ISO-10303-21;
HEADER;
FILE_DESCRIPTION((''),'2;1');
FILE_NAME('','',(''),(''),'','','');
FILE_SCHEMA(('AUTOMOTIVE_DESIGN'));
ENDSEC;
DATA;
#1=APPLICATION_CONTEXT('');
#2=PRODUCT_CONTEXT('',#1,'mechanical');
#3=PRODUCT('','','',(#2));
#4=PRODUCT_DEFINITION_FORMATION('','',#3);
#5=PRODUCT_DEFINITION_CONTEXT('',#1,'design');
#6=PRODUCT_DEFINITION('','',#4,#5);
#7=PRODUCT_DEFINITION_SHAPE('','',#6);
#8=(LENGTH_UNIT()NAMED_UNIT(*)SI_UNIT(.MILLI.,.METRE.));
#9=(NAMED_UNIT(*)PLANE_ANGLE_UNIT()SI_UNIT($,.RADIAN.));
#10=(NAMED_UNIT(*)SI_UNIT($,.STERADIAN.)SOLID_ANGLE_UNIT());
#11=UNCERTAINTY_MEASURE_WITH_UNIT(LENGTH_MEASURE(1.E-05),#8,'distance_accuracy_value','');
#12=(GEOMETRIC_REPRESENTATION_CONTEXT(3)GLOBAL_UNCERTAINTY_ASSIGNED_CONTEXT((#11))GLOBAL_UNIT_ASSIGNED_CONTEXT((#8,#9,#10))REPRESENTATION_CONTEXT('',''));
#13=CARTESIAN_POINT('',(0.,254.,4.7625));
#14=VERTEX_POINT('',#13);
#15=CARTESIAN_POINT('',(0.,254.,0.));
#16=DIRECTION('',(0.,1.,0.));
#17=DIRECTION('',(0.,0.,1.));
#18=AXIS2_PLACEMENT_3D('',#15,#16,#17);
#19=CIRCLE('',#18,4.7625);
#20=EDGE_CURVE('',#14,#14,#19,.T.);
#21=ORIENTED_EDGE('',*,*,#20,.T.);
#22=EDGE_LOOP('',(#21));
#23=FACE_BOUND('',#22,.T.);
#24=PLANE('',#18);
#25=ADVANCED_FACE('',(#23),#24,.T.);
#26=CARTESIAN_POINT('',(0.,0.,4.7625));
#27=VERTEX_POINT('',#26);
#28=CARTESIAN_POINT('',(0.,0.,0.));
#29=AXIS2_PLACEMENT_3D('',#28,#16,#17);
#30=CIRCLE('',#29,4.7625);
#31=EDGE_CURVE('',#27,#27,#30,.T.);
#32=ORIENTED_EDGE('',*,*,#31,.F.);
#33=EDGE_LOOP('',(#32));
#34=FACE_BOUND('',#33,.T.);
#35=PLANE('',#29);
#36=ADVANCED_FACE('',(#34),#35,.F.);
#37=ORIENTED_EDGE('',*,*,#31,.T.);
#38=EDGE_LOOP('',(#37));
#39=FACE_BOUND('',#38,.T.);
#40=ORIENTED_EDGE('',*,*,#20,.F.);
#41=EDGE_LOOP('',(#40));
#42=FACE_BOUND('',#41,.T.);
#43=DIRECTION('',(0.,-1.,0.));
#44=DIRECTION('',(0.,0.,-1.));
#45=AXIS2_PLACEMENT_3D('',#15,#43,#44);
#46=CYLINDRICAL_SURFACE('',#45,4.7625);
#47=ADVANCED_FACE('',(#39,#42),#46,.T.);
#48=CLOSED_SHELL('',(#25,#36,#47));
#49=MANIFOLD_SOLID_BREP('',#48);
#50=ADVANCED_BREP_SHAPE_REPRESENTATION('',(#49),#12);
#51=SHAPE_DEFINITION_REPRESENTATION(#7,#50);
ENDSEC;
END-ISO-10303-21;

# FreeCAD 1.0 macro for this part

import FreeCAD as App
import Part
import Sketcher
Q = App.Units.Quantity

doc = App.newDocument("Part")
body = doc.addObject("PartDesign::Body", "Body")

sketch1 = doc.addObject("Sketcher::SketchObject", "Sketch")
body.addObject(sketch1)
sketch1.AttachmentSupport = (doc.XZ_Plane, [""])
sketch1.MapMode = "FlatFace"
sketch1.addGeometry(Part.Circle(App.Vector(0, 0, 0), App.Vector(0, 0, 1), 4.8), False)
sketch1.addConstraint([
    Sketcher.Constraint("Coincident", 0, 3, -1, 1),
    Sketcher.Constraint("Diameter", 0, Q("0.375 in")),
])
pad1 = doc.addObject("PartDesign::Pad", "Pad")
body.addObject(pad1)
pad1.Profile = sketch1
pad1.Length = Q("10 in")
pad1.Reversed = True

doc.recompute()
